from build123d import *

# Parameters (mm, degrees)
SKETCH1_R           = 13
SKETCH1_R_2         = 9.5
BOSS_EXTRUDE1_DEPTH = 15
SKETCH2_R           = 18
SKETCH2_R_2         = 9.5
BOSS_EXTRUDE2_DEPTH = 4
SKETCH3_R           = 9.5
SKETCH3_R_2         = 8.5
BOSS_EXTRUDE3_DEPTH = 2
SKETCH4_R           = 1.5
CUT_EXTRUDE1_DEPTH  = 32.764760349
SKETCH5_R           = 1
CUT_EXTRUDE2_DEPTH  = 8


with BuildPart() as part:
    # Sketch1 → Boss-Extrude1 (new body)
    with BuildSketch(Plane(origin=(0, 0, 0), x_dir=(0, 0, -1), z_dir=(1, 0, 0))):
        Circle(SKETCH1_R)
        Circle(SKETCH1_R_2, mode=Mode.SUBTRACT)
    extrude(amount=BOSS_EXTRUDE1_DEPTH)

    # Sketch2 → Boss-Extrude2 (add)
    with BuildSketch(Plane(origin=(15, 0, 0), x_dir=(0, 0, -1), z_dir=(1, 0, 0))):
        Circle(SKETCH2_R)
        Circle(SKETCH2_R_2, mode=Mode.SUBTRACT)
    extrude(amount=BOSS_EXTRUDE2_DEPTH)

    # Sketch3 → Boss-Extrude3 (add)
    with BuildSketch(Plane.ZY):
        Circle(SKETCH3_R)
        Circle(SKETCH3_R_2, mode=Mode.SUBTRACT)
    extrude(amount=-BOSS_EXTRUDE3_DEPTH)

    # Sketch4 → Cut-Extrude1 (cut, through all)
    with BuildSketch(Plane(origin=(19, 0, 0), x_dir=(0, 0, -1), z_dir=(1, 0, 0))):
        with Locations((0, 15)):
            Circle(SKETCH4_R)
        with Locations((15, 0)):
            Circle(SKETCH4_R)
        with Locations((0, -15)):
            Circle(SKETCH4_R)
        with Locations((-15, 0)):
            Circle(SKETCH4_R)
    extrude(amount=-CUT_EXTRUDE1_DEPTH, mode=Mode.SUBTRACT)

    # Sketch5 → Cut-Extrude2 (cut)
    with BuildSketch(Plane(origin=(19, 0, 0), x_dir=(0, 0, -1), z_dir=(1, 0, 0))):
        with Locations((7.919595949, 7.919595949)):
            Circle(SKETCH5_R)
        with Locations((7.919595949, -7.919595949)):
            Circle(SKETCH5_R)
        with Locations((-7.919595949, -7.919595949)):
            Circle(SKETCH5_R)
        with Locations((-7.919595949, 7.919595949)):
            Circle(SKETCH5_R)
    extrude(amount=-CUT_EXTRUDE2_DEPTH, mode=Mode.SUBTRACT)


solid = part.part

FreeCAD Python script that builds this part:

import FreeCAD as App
import Part
import Sketcher
from FreeCAD import Vector

doc = App.newDocument("Part")
body = doc.addObject("PartDesign::Body", "Body")

sketch1 = body.newObject("Sketcher::SketchObject", "Sketch")
sketch1.AttachmentSupport = (doc.getObject("YZ_Plane"), [""])
sketch1.MapMode = "FlatFace"
sketch1.addGeometry(Part.Circle(Vector(0, 0, 0), Vector(0, 0, 1), 13), False)
sketch1.addGeometry(Part.Circle(Vector(0, 0, 0), Vector(0, 0, 1), 10), False)
sketch1.addConstraint(Sketcher.Constraint("Coincident", 0, 3, -1, 1))
sketch1.addConstraint(Sketcher.Constraint("Coincident", 1, 3, -1, 1))
sketch1.addConstraint(Sketcher.Constraint("Diameter", 0, 26.0))
sketch1.addConstraint(Sketcher.Constraint("Diameter", 1, 19.0))
pad1 = body.newObject("PartDesign::Pad", "Pad")
pad1.Profile = sketch1
pad1.Length = 15

sketch2 = body.newObject("Sketcher::SketchObject", "Sketch001")
sketch2.AttachmentSupport = (doc.getObject("YZ_Plane"), [""])
sketch2.MapMode = "FlatFace"
sketch2.AttachmentOffset = App.Placement(Vector(0, 0, 15), App.Rotation())
sketch2.addGeometry(Part.Circle(Vector(0, 0, 0), Vector(0, 0, 1), 18), False)
sketch2.addGeometry(Part.Circle(Vector(0, 0, 0), Vector(0, 0, 1), 10), False)
sketch2.addConstraint(Sketcher.Constraint("Coincident", 0, 3, -1, 1))
sketch2.addConstraint(Sketcher.Constraint("Coincident", 1, 3, -1, 1))
sketch2.addConstraint(Sketcher.Constraint("Diameter", 0, 36.0))
sketch2.addConstraint(Sketcher.Constraint("Diameter", 1, 19.0))
pad2 = body.newObject("PartDesign::Pad", "Pad001")
pad2.Profile = sketch2
pad2.Length = 4

sketch3 = body.newObject("Sketcher::SketchObject", "Sketch002")
sketch3.AttachmentSupport = (doc.getObject("YZ_Plane"), [""])
sketch3.MapMode = "FlatFace"
sketch3.addGeometry(Part.Circle(Vector(0, 0, 0), Vector(0, 0, 1), 10), False)
sketch3.addGeometry(Part.Circle(Vector(0, 0, 0), Vector(0, 0, 1), 8), False)
sketch3.addConstraint(Sketcher.Constraint("Coincident", 0, 3, -1, 1))
sketch3.addConstraint(Sketcher.Constraint("Coincident", 1, 3, -1, 1))
sketch3.addConstraint(Sketcher.Constraint("Diameter", 0, 19.0))
sketch3.addConstraint(Sketcher.Constraint("Diameter", 1, 17.0))
pad3 = body.newObject("PartDesign::Pad", "Pad002")
pad3.Profile = sketch3
pad3.Length = 2

sketch4 = body.newObject("Sketcher::SketchObject", "Sketch003")
sketch4.AttachmentSupport = (doc.getObject("YZ_Plane"), [""])
sketch4.MapMode = "FlatFace"
sketch4.AttachmentOffset = App.Placement(Vector(0, 0, 19), App.Rotation())
sketch4.addGeometry(Part.Circle(Vector(15, 0, 0), Vector(0, 0, 1), 1.5), False)
sketch4.addGeometry(Part.Circle(Vector(0, -15, 0), Vector(0, 0, 1), 1.5), False)
sketch4.addGeometry(Part.Circle(Vector(-15, 0, 0), Vector(0, 0, 1), 1.5), False)
sketch4.addGeometry(Part.Circle(Vector(0, 15, 0), Vector(0, 0, 1), 1.5), False)
sketch4.addConstraint(Sketcher.Constraint("Equal", 0, 1))
sketch4.addConstraint(Sketcher.Constraint("Equal", 1, 2))
sketch4.addConstraint(Sketcher.Constraint("Equal", 2, 3))
sketch4.addConstraint(Sketcher.Constraint("Symmetric", 0, 3, 2, 3, -1, 1))
sketch4.addConstraint(Sketcher.Constraint("Symmetric", 1, 3, 3, 3, -1, 1))
sketch4.addConstraint(Sketcher.Constraint("PointOnObject", 0, 3, -1))
sketch4.addConstraint(Sketcher.Constraint("PointOnObject", 1, 3, -2))
sketch4.addConstraint(Sketcher.Constraint("Diameter", 0, 3.0))
sketch4.addConstraint(Sketcher.Constraint("DistanceX", -1, 1, 0, 3, 15.0))
sketch4.addConstraint(Sketcher.Constraint("DistanceY", 1, 3, -1, 1, 15.0))
pocket1 = body.newObject("PartDesign::Pocket", "Pocket")
pocket1.Profile = sketch4
pocket1.Type = "ThroughAll"

sketch5 = body.newObject("Sketcher::SketchObject", "Sketch004")
sketch5.AttachmentSupport = (doc.getObject("YZ_Plane"), [""])
sketch5.MapMode = "FlatFace"
sketch5.AttachmentOffset = App.Placement(Vector(0, 0, 19), App.Rotation())
sketch5.addGeometry(Part.Circle(Vector(7.9, -7.9, 0), Vector(0, 0, 1), 1), False)
sketch5.addGeometry(Part.Circle(Vector(-7.9, -7.9, 0), Vector(0, 0, 1), 1), False)
sketch5.addGeometry(Part.Circle(Vector(-7.9, 7.9, 0), Vector(0, 0, 1), 1), False)
sketch5.addGeometry(Part.Circle(Vector(7.9, 7.9, 0), Vector(0, 0, 1), 1), False)
sketch5.addConstraint(Sketcher.Constraint("Equal", 0, 1))
sketch5.addConstraint(Sketcher.Constraint("Equal", 1, 2))
sketch5.addConstraint(Sketcher.Constraint("Equal", 2, 3))
sketch5.addConstraint(Sketcher.Constraint("Symmetric", 0, 3, 2, 3, -1, 1))
sketch5.addConstraint(Sketcher.Constraint("Symmetric", 1, 3, 3, 3, -1, 1))
sketch5.addConstraint(Sketcher.Constraint("Symmetric", 0, 3, 1, 3, -2))
sketch5.addConstraint(Sketcher.Constraint("Diameter", 0, 2.0))
sketch5.addConstraint(Sketcher.Constraint("DistanceX", 1, 3, 0, 3, 15.839192))
sketch5.addConstraint(Sketcher.Constraint("DistanceY", 1, 3, 2, 3, 15.839192))
pocket2 = body.newObject("PartDesign::Pocket", "Pocket001")
pocket2.Profile = sketch5
pocket2.Length = 8

doc.recompute()
